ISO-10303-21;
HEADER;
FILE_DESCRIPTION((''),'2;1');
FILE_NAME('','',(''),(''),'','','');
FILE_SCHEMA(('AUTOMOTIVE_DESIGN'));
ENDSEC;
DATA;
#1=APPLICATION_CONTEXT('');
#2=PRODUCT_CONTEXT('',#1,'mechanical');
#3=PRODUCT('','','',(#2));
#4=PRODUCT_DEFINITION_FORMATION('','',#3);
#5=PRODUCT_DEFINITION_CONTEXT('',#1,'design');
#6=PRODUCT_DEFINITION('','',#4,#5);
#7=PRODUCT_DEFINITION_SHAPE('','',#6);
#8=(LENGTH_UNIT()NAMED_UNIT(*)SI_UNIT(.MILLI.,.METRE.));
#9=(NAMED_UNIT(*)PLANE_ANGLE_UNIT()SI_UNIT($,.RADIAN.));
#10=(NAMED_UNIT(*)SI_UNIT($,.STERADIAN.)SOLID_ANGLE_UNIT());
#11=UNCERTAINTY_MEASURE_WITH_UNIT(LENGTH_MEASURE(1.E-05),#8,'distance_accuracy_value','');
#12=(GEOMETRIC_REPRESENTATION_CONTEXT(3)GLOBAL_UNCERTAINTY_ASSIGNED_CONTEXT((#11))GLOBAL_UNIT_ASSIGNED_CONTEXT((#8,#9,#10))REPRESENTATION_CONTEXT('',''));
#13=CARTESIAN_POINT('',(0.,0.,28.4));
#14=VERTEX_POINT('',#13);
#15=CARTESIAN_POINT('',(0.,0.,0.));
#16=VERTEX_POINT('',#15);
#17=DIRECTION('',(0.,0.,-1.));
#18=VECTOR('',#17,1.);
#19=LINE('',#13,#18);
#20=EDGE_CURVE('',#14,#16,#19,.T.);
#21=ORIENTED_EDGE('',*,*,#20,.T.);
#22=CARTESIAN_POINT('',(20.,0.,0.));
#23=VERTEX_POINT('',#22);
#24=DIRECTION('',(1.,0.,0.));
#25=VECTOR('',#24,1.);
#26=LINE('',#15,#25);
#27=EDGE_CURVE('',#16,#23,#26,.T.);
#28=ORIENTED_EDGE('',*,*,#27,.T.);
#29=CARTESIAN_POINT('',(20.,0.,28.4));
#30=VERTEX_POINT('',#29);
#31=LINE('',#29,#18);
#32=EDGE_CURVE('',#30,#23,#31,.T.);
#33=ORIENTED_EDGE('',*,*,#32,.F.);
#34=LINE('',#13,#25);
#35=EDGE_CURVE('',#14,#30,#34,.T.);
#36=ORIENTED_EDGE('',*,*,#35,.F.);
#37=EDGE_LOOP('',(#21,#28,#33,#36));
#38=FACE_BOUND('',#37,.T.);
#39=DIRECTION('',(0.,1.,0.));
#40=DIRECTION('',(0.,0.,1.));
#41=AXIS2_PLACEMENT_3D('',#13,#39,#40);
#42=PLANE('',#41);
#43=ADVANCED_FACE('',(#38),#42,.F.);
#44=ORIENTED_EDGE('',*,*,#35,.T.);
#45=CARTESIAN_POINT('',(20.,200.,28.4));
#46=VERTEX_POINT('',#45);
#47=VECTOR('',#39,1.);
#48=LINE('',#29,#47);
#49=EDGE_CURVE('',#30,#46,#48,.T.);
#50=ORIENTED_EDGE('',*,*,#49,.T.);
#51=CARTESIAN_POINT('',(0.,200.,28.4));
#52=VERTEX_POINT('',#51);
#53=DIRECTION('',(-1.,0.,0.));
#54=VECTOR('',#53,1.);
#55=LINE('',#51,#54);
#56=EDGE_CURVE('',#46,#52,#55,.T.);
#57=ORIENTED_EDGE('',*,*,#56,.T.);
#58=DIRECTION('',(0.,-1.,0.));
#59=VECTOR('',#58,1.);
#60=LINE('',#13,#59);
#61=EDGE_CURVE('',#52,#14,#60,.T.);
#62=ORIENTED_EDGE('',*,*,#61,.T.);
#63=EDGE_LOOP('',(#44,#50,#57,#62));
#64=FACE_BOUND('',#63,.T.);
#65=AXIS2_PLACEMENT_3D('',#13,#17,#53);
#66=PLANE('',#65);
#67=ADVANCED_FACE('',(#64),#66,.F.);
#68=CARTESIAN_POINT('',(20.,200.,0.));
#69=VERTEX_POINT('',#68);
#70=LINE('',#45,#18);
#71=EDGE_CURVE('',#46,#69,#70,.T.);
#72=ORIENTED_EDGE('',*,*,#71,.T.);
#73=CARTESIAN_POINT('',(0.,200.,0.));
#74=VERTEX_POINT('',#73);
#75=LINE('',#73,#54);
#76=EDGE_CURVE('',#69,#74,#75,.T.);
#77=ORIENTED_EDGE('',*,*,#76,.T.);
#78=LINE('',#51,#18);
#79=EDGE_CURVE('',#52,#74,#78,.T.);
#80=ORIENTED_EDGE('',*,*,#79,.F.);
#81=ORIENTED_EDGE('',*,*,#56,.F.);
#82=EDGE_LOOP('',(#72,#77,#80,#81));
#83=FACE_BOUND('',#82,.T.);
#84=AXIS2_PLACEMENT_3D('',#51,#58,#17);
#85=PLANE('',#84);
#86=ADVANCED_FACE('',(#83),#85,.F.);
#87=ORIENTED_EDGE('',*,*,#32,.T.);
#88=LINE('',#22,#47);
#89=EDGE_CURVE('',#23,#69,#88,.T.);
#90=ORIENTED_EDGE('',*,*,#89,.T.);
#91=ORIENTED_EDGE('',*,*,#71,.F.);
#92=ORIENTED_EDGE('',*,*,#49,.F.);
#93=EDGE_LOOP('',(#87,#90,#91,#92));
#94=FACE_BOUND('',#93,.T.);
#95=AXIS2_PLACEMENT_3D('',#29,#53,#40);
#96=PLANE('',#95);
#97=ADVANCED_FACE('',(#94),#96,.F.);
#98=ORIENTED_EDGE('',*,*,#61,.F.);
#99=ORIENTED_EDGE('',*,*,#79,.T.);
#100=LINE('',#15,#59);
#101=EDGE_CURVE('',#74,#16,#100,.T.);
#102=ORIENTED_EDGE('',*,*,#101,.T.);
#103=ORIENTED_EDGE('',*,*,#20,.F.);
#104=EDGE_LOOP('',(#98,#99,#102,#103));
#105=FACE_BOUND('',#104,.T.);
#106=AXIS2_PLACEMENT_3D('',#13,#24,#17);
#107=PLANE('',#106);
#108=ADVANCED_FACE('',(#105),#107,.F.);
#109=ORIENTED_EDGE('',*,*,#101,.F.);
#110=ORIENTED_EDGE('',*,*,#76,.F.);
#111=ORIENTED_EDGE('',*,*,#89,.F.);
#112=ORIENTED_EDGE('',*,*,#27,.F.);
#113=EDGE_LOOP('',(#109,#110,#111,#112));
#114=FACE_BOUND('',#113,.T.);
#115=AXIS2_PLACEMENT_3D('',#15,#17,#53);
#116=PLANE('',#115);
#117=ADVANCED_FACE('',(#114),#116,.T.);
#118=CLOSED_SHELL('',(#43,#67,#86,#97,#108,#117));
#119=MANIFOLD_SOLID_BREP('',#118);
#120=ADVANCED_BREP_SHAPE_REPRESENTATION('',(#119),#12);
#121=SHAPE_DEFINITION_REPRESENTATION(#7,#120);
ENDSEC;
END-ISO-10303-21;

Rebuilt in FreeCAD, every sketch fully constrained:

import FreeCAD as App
import Part
import Sketcher


def add_polygon(sketch, points):
    """Adds a closed chain of lines whose ends are joined by coincident constraints."""
    first, n = sketch.GeometryCount, len(points)
    for a, b in zip(points, points[1:] + points[:1]):
        sketch.addGeometry(Part.LineSegment(App.Vector(*a, 0), App.Vector(*b, 0)), False)
    for i in range(n):
        sketch.addConstraint(Sketcher.Constraint("Coincident", first + i, 2, first + (i + 1) % n, 1))

doc = App.newDocument("Part")
body = doc.addObject("PartDesign::Body", "Body")

sketch1 = doc.addObject("Sketcher::SketchObject", "Sketch")
body.addObject(sketch1)
sketch1.AttachmentSupport = (doc.XY_Plane, [""])
sketch1.MapMode = "FlatFace"
add_polygon(sketch1, [(0, 200), (0, 0), (20, 0), (20, 200)])
sketch1.addConstraint([
    Sketcher.Constraint("Vertical", 0),
    Sketcher.Constraint("Horizontal", 1),
    Sketcher.Constraint("Vertical", 2),
    Sketcher.Constraint("Horizontal", 3),
    Sketcher.Constraint("Coincident", 0, 2, -1, 1),
    Sketcher.Constraint("DistanceX", 1, 1, 1, 2, 20.0),
    Sketcher.Constraint("DistanceY", 0, 2, 0, 1, 200.0),
])
pad1 = doc.addObject("PartDesign::Pad", "Pad")
body.addObject(pad1)
pad1.Profile = sketch1
pad1.Length = 28.4

doc.recompute()
